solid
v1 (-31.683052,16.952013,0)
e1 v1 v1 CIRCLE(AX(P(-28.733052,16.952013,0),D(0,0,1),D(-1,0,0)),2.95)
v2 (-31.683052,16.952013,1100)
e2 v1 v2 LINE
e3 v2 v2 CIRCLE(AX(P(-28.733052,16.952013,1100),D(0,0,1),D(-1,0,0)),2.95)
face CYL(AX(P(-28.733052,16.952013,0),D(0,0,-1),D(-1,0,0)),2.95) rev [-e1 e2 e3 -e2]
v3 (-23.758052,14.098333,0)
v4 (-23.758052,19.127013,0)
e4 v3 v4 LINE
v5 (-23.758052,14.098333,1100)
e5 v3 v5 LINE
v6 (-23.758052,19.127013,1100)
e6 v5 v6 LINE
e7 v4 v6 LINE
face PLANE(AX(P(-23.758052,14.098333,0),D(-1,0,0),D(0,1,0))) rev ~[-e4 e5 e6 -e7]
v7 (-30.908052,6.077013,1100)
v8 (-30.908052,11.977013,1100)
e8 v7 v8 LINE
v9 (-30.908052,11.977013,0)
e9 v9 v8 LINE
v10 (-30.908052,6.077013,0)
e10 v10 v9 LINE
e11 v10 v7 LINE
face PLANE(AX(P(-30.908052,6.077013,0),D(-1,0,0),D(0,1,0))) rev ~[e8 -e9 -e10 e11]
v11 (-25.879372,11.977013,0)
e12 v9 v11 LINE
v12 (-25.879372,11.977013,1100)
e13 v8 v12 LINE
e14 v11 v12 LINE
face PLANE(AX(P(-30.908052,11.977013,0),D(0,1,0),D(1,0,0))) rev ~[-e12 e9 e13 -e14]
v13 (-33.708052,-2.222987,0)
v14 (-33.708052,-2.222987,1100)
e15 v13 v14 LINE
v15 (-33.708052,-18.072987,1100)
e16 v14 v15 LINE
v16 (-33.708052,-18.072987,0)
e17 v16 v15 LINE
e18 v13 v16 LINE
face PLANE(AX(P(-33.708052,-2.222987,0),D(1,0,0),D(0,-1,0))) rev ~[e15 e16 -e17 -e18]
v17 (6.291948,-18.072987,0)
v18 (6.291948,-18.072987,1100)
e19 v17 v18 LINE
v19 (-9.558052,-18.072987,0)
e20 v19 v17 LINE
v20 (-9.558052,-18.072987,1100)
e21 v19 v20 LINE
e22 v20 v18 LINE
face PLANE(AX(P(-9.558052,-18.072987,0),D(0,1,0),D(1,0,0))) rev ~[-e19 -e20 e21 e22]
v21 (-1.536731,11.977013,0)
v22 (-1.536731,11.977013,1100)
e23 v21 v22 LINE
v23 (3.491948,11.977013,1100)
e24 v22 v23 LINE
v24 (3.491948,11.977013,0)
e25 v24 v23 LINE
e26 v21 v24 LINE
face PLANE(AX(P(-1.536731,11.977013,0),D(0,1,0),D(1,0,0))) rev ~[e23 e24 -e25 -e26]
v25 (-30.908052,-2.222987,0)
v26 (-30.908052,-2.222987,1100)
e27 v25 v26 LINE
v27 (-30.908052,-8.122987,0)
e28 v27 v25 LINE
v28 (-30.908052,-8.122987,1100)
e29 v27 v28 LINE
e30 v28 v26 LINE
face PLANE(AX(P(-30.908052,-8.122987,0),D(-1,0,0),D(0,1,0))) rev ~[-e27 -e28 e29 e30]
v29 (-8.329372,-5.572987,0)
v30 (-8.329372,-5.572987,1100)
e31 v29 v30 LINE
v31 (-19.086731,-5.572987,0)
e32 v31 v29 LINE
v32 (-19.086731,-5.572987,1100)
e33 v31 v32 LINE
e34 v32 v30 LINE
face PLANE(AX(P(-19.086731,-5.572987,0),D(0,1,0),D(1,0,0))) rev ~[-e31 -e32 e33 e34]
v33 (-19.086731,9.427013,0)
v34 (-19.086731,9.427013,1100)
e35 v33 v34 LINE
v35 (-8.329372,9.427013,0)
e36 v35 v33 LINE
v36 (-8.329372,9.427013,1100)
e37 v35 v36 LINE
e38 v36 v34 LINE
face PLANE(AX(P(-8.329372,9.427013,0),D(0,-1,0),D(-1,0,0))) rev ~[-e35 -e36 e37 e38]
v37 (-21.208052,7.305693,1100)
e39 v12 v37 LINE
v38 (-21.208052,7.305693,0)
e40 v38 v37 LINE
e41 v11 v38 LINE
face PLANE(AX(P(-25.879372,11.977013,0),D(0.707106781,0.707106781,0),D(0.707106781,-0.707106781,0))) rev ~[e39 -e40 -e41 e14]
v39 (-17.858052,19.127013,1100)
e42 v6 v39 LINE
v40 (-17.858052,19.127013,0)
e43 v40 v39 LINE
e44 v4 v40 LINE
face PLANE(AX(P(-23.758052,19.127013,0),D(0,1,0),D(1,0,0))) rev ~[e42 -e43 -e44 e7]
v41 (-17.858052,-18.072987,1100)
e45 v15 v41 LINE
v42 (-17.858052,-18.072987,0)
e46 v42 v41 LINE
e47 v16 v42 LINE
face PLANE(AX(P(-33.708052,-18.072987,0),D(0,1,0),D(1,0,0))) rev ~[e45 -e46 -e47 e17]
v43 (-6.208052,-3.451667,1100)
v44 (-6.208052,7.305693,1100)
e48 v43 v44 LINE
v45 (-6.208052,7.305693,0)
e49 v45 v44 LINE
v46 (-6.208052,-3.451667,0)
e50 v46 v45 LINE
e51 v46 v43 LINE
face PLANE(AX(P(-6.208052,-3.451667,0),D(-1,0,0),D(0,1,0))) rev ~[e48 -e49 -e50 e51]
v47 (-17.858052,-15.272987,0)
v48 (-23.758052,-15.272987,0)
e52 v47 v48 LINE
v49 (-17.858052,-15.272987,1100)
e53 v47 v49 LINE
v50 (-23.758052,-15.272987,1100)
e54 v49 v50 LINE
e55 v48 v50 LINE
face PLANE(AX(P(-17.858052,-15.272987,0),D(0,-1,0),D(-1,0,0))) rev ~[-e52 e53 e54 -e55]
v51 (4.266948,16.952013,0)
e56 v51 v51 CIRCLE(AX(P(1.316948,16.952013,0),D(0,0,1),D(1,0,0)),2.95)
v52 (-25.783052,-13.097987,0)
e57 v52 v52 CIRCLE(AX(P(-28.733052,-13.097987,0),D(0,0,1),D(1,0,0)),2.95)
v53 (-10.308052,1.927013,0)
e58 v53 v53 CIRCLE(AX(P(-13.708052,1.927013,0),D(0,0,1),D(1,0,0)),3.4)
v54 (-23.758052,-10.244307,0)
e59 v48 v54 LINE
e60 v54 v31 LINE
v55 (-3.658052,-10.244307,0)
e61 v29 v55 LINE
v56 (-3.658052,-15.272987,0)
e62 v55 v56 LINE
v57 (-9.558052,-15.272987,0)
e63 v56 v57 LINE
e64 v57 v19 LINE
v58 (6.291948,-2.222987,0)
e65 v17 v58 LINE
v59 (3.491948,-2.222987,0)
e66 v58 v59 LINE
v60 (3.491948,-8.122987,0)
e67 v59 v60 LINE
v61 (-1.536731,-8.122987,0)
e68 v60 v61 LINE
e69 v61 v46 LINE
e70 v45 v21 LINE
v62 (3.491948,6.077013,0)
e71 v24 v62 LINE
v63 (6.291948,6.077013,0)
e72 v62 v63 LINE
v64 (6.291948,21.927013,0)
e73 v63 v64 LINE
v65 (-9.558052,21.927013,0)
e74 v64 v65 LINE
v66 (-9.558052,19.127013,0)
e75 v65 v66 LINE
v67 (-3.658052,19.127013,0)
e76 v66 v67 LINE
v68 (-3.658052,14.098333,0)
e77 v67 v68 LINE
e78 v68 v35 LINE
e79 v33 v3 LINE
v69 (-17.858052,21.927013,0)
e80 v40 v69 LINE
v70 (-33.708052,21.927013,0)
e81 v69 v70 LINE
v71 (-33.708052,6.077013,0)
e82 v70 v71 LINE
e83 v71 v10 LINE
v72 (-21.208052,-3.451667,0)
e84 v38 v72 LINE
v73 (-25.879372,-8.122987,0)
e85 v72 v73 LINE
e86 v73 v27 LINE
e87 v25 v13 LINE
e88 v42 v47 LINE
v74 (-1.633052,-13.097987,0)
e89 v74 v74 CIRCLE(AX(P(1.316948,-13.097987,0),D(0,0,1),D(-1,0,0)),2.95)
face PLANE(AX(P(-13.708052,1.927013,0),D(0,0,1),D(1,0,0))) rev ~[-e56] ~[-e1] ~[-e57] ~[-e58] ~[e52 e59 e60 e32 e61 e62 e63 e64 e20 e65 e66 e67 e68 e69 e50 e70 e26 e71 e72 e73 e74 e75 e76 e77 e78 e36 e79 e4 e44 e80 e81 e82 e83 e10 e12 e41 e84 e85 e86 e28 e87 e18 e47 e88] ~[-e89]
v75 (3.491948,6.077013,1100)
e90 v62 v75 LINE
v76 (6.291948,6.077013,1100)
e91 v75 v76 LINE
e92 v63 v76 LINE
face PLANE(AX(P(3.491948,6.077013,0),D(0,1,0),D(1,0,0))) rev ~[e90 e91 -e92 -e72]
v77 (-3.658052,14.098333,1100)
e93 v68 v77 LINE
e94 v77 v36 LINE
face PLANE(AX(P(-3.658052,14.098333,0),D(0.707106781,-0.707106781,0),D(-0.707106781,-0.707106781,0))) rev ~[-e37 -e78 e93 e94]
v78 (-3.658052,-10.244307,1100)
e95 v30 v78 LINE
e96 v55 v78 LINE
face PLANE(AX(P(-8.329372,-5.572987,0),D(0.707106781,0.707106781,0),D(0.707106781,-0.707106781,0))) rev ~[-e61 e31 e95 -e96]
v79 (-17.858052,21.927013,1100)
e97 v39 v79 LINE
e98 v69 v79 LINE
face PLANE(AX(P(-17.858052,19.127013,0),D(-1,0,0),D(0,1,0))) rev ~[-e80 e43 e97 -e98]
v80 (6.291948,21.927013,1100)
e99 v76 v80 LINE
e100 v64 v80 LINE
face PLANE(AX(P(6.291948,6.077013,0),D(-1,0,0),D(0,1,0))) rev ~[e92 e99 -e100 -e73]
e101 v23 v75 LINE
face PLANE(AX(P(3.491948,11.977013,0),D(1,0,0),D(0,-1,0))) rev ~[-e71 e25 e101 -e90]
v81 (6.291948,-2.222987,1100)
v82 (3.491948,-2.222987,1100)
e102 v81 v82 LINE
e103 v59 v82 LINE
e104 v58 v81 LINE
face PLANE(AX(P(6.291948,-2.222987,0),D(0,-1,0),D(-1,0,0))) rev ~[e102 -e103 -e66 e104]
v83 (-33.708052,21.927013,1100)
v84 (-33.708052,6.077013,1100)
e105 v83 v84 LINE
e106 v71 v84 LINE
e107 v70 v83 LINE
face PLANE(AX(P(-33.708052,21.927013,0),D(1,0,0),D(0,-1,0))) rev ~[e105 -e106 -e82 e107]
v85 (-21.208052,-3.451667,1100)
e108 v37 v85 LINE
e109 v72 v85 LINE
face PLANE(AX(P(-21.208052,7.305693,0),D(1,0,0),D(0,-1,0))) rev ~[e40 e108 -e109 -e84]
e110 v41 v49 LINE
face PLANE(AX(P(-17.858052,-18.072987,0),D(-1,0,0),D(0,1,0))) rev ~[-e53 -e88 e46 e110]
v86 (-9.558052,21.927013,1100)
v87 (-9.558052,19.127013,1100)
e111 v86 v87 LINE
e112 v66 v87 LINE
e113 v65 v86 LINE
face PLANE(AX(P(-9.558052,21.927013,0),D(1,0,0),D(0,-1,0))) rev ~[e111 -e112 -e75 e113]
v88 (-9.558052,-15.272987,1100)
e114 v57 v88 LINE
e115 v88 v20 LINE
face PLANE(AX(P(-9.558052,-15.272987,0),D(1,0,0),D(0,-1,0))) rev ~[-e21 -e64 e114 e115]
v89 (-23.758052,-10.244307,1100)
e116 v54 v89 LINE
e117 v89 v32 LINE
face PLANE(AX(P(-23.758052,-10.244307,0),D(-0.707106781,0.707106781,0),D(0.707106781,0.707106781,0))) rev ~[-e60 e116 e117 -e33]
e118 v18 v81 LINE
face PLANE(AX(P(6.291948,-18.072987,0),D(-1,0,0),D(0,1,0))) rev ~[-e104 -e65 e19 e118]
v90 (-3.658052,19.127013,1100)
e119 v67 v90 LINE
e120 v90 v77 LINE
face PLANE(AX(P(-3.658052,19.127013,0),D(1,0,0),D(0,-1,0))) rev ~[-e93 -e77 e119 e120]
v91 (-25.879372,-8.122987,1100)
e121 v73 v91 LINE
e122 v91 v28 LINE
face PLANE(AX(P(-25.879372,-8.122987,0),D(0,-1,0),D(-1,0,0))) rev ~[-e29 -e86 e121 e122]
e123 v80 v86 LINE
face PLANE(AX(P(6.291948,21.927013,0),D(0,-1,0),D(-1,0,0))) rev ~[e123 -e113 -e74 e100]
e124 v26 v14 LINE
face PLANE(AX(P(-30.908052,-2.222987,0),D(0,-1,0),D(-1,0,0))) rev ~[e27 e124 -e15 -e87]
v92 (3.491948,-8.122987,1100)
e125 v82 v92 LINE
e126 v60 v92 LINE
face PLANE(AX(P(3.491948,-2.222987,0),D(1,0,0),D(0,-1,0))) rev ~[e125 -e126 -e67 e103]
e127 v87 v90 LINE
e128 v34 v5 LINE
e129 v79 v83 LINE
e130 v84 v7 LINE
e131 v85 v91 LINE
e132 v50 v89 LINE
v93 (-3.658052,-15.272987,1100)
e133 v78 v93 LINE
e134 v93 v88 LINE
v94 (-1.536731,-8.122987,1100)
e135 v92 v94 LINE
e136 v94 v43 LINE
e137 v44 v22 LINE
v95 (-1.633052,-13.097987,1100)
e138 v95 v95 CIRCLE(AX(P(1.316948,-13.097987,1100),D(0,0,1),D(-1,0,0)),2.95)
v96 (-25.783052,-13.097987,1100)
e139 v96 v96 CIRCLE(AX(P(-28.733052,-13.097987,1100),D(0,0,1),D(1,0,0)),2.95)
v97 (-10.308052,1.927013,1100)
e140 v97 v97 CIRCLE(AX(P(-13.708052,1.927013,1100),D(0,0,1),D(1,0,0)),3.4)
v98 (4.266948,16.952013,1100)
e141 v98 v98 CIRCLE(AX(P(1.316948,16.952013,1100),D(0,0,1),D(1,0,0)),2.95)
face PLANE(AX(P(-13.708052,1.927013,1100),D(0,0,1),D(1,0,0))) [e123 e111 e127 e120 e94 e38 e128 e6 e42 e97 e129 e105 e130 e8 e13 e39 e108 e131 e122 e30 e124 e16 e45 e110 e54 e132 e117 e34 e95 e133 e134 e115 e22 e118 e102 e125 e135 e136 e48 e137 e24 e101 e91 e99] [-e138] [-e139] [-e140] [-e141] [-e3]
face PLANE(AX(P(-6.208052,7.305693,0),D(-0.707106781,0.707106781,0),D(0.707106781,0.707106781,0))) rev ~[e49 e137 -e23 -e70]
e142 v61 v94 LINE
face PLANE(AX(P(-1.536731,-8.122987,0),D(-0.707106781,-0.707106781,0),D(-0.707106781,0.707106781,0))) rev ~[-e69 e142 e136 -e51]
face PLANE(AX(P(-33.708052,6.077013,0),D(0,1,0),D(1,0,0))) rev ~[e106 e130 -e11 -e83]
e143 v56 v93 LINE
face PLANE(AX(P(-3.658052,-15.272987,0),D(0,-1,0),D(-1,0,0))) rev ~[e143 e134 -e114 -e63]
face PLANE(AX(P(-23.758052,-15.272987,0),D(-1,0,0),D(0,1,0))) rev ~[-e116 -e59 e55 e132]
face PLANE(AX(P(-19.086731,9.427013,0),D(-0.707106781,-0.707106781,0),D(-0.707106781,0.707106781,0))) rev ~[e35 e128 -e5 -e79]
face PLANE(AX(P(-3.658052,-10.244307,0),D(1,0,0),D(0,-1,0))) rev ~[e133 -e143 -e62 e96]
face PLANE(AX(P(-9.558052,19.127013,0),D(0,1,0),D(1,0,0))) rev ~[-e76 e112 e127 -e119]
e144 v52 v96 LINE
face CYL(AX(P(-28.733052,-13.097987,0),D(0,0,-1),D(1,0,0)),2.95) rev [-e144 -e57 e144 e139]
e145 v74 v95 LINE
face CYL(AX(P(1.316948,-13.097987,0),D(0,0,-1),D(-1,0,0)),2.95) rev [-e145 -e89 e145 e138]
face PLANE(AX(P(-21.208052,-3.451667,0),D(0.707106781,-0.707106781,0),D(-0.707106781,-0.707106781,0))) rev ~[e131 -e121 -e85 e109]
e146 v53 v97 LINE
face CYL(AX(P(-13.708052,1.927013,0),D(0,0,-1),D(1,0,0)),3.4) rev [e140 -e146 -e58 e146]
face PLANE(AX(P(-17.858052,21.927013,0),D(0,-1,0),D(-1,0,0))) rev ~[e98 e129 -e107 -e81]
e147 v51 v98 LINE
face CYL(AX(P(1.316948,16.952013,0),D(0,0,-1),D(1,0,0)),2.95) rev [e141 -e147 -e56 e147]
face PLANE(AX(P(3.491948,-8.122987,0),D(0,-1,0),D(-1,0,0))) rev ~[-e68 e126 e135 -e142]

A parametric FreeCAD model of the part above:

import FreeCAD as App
import Part
import Sketcher
from FreeCAD import Vector

doc = App.newDocument("Part")
params = doc.addObject("Spreadsheet::Sheet", "Params")
for row, (alias, value) in enumerate([
    ("sketch1_diameter", "5.9 mm"),
    ("sketch1_diameter2", "6.8 mm"),
    ("sketch1_width", "5.9 mm"),
    ("sketch1_width2", "2.8 mm"),
    ("sketch1_width3", "15.85 mm"),
    ("pad1_length", "1100 mm"),
], start=1):
    params.set(f"A{row}", alias)
    params.set(f"B{row}", "=" + value)
    params.setAlias(f"B{row}", alias)

body = doc.addObject("PartDesign::Body", "Body")

# Sketch on XY plane
sketch1 = body.newObject("Sketcher::SketchObject", "Sketch")
sketch1.AttachmentSupport = (doc.getObject("XY_Plane"), [""])
sketch1.MapMode = "FlatFace"
sketch1.addGeometry([
    Part.LineSegment(Vector(-19.1, -5.6, 0), Vector(-8.3, -5.6, 0)),  # 0
    Part.LineSegment(Vector(-8.3, -5.6, 0), Vector(-3.7, -10.2, 0)),  # 1
    Part.LineSegment(Vector(-3.7, -10.2, 0), Vector(-3.7, -15.3, 0)),  # 2
    Part.LineSegment(Vector(-3.7, -15.3, 0), Vector(-9.6, -15.3, 0)),  # 3
    Part.LineSegment(Vector(-9.6, -15.3, 0), Vector(-9.6, -18.1, 0)),  # 4
    Part.LineSegment(Vector(-9.6, -18.1, 0), Vector(6.3, -18.1, 0)),  # 5
    Part.LineSegment(Vector(6.3, -18.1, 0), Vector(6.3, -2.2, 0)),  # 6
    Part.LineSegment(Vector(6.3, -2.2, 0), Vector(3.5, -2.2, 0)),  # 7
    Part.LineSegment(Vector(3.5, -2.2, 0), Vector(3.5, -8.1, 0)),  # 8
    Part.LineSegment(Vector(3.5, -8.1, 0), Vector(-1.5, -8.1, 0)),  # 9
    Part.LineSegment(Vector(-1.5, -8.1, 0), Vector(-6.2, -3.5, 0)),  # 10
    Part.LineSegment(Vector(-6.2, -3.5, 0), Vector(-6.2, 7.3, 0)),  # 11
    Part.LineSegment(Vector(-6.2, 7.3, 0), Vector(-1.5, 12, 0)),  # 12
    Part.LineSegment(Vector(-1.5, 12, 0), Vector(3.5, 12, 0)),  # 13
    Part.LineSegment(Vector(3.5, 12, 0), Vector(3.5, 6.1, 0)),  # 14
    Part.LineSegment(Vector(3.5, 6.1, 0), Vector(6.3, 6.1, 0)),  # 15
    Part.LineSegment(Vector(6.3, 6.1, 0), Vector(6.3, 21.9, 0)),  # 16
    Part.LineSegment(Vector(6.3, 21.9, 0), Vector(-9.6, 21.9, 0)),  # 17
    Part.LineSegment(Vector(-9.6, 21.9, 0), Vector(-9.6, 19.1, 0)),  # 18
    Part.LineSegment(Vector(-9.6, 19.1, 0), Vector(-3.7, 19.1, 0)),  # 19
    Part.LineSegment(Vector(-3.7, 19.1, 0), Vector(-3.7, 14.1, 0)),  # 20
    Part.LineSegment(Vector(-3.7, 14.1, 0), Vector(-8.3, 9.4, 0)),  # 21
    Part.LineSegment(Vector(-8.3, 9.4, 0), Vector(-19.1, 9.4, 0)),  # 22
    Part.LineSegment(Vector(-19.1, 9.4, 0), Vector(-23.8, 14.1, 0)),  # 23
    Part.LineSegment(Vector(-23.8, 14.1, 0), Vector(-23.8, 19.1, 0)),  # 24
    Part.LineSegment(Vector(-23.8, 19.1, 0), Vector(-17.9, 19.1, 0)),  # 25
    Part.LineSegment(Vector(-17.9, 19.1, 0), Vector(-17.9, 21.9, 0)),  # 26
    Part.LineSegment(Vector(-17.9, 21.9, 0), Vector(-33.7, 21.9, 0)),  # 27
    Part.LineSegment(Vector(-33.7, 21.9, 0), Vector(-33.7, 6.1, 0)),  # 28
    Part.LineSegment(Vector(-33.7, 6.1, 0), Vector(-30.9, 6.1, 0)),  # 29
    Part.LineSegment(Vector(-30.9, 6.1, 0), Vector(-30.9, 12, 0)),  # 30
    Part.LineSegment(Vector(-30.9, 12, 0), Vector(-25.9, 12, 0)),  # 31
    Part.LineSegment(Vector(-25.9, 12, 0), Vector(-21.2, 7.3, 0)),  # 32
    Part.LineSegment(Vector(-21.2, 7.3, 0), Vector(-21.2, -3.5, 0)),  # 33
    Part.LineSegment(Vector(-21.2, -3.5, 0), Vector(-25.9, -8.1, 0)),  # 34
    Part.LineSegment(Vector(-25.9, -8.1, 0), Vector(-30.9, -8.1, 0)),  # 35
    Part.LineSegment(Vector(-30.9, -8.1, 0), Vector(-30.9, -2.2, 0)),  # 36
    Part.LineSegment(Vector(-30.9, -2.2, 0), Vector(-33.7, -2.2, 0)),  # 37
    Part.LineSegment(Vector(-33.7, -2.2, 0), Vector(-33.7, -18.1, 0)),  # 38
    Part.LineSegment(Vector(-33.7, -18.1, 0), Vector(-17.9, -18.1, 0)),  # 39
    Part.LineSegment(Vector(-17.9, -18.1, 0), Vector(-17.9, -15.3, 0)),  # 40
    Part.LineSegment(Vector(-17.9, -15.3, 0), Vector(-23.8, -15.3, 0)),  # 41
    Part.LineSegment(Vector(-23.8, -15.3, 0), Vector(-23.8, -10.2, 0)),  # 42
    Part.LineSegment(Vector(-23.8, -10.2, 0), Vector(-19.1, -5.6, 0)),  # 43
    Part.Circle(Vector(-28.7, -13.1, 0), Vector(0, 0, 1), 3),  # 44
    Part.Circle(Vector(1.3, -13.1, 0), Vector(0, 0, 1), 3),  # 45
    Part.Circle(Vector(-28.7, 17, 0), Vector(0, 0, 1), 3),  # 46
    Part.Circle(Vector(-13.7, 1.9, 0), Vector(0, 0, 1), 3.4),  # 47
    Part.Circle(Vector(1.3, 17, 0), Vector(0, 0, 1), 3),  # 48
], False)
sketch1.addConstraint([
    Sketcher.Constraint("Coincident", 0, 2, 1, 1),
    Sketcher.Constraint("Coincident", 1, 2, 2, 1),
    Sketcher.Constraint("Coincident", 2, 2, 3, 1),
    Sketcher.Constraint("Coincident", 3, 2, 4, 1),
    Sketcher.Constraint("Coincident", 4, 2, 5, 1),
    Sketcher.Constraint("Coincident", 5, 2, 6, 1),
    Sketcher.Constraint("Coincident", 6, 2, 7, 1),
    Sketcher.Constraint("Coincident", 7, 2, 8, 1),
    Sketcher.Constraint("Coincident", 8, 2, 9, 1),
    Sketcher.Constraint("Coincident", 9, 2, 10, 1),
    Sketcher.Constraint("Coincident", 10, 2, 11, 1),
    Sketcher.Constraint("Coincident", 11, 2, 12, 1),
    Sketcher.Constraint("Coincident", 12, 2, 13, 1),
    Sketcher.Constraint("Coincident", 13, 2, 14, 1),
    Sketcher.Constraint("Coincident", 14, 2, 15, 1),
    Sketcher.Constraint("Coincident", 15, 2, 16, 1),
    Sketcher.Constraint("Coincident", 16, 2, 17, 1),
    Sketcher.Constraint("Coincident", 17, 2, 18, 1),
    Sketcher.Constraint("Coincident", 18, 2, 19, 1),
    Sketcher.Constraint("Coincident", 19, 2, 20, 1),
    Sketcher.Constraint("Coincident", 20, 2, 21, 1),
    Sketcher.Constraint("Coincident", 21, 2, 22, 1),
    Sketcher.Constraint("Coincident", 22, 2, 23, 1),
    Sketcher.Constraint("Coincident", 23, 2, 24, 1),
    Sketcher.Constraint("Coincident", 24, 2, 25, 1),
    Sketcher.Constraint("Coincident", 25, 2, 26, 1),
    Sketcher.Constraint("Coincident", 26, 2, 27, 1),
    Sketcher.Constraint("Coincident", 27, 2, 28, 1),
    Sketcher.Constraint("Coincident", 28, 2, 29, 1),
    Sketcher.Constraint("Coincident", 29, 2, 30, 1),
    Sketcher.Constraint("Coincident", 30, 2, 31, 1),
    Sketcher.Constraint("Coincident", 31, 2, 32, 1),
    Sketcher.Constraint("Coincident", 32, 2, 33, 1),
    Sketcher.Constraint("Coincident", 33, 2, 34, 1),
    Sketcher.Constraint("Coincident", 34, 2, 35, 1),
    Sketcher.Constraint("Coincident", 35, 2, 36, 1),
    Sketcher.Constraint("Coincident", 36, 2, 37, 1),
    Sketcher.Constraint("Coincident", 37, 2, 38, 1),
    Sketcher.Constraint("Coincident", 38, 2, 39, 1),
    Sketcher.Constraint("Coincident", 39, 2, 40, 1),
    Sketcher.Constraint("Coincident", 40, 2, 41, 1),
    Sketcher.Constraint("Coincident", 41, 2, 42, 1),
    Sketcher.Constraint("Coincident", 42, 2, 43, 1),
    Sketcher.Constraint("Coincident", 43, 2, 0, 1),
    Sketcher.Constraint("Horizontal", 0),
    Sketcher.Constraint("Vertical", 2),
    Sketcher.Constraint("Horizontal", 3),
    Sketcher.Constraint("Vertical", 4),
    Sketcher.Constraint("Horizontal", 5),
    Sketcher.Constraint("Vertical", 6),
    Sketcher.Constraint("Horizontal", 7),
    Sketcher.Constraint("Vertical", 8),
    Sketcher.Constraint("Horizontal", 9),
    Sketcher.Constraint("Vertical", 11),
    Sketcher.Constraint("Horizontal", 13),
    Sketcher.Constraint("Vertical", 14),
    Sketcher.Constraint("Horizontal", 15),
    Sketcher.Constraint("Vertical", 16),
    Sketcher.Constraint("Horizontal", 17),
    Sketcher.Constraint("Vertical", 18),
    Sketcher.Constraint("Horizontal", 19),
    Sketcher.Constraint("Vertical", 20),
    Sketcher.Constraint("Horizontal", 22),
    Sketcher.Constraint("Vertical", 24),
    Sketcher.Constraint("Horizontal", 25),
    Sketcher.Constraint("Vertical", 26),
    Sketcher.Constraint("Horizontal", 27),
    Sketcher.Constraint("Vertical", 28),
    Sketcher.Constraint("Horizontal", 29),
    Sketcher.Constraint("Vertical", 30),
    Sketcher.Constraint("Horizontal", 31),
    Sketcher.Constraint("Vertical", 33),
    Sketcher.Constraint("Horizontal", 35),
    Sketcher.Constraint("Vertical", 36),
    Sketcher.Constraint("Horizontal", 37),
    Sketcher.Constraint("Vertical", 38),
    Sketcher.Constraint("Horizontal", 39),
    Sketcher.Constraint("Vertical", 40),
    Sketcher.Constraint("Horizontal", 41),
    Sketcher.Constraint("Vertical", 42),
    Sketcher.Constraint("Equal", 44, 45),
    Sketcher.Constraint("Equal", 45, 46),
    Sketcher.Constraint("Equal", 46, 48),
    Sketcher.Constraint("Parallel", 1, 10),
    Sketcher.Constraint("Perpendicular", 10, 12),
    Sketcher.Constraint("Parallel", 12, 21),
    Sketcher.Constraint("Perpendicular", 21, 23),
    Sketcher.Constraint("Parallel", 23, 32),
    Sketcher.Constraint("Perpendicular", 32, 34),
    Sketcher.Constraint("Parallel", 34, 43),
    Sketcher.Constraint("Horizontal", 44, 3, 45, 3),
    Sketcher.Constraint("Horizontal", 46, 3, 48, 3),
    Sketcher.Constraint("Horizontal", 20, 2, 23, 2),
    Sketcher.Constraint("Horizontal", 19, 2, 24, 2),
    Sketcher.Constraint("Horizontal", 17, 2, 26, 2),
    Sketcher.Constraint("Horizontal", 15, 2, 28, 2),
    Sketcher.Constraint("Horizontal", 13, 2, 30, 2),
    Sketcher.Constraint("Horizontal", 11, 2, 32, 2),
    Sketcher.Constraint("Horizontal", 10, 2, 33, 2),
    Sketcher.Constraint("Horizontal", 9, 2, 34, 2),
    Sketcher.Constraint("Horizontal", 7, 2, 36, 2),
    Sketcher.Constraint("Horizontal", 5, 2, 38, 2),
    Sketcher.Constraint("Horizontal", 3, 2, 40, 2),
    Sketcher.Constraint("Horizontal", 1, 2, 42, 2),
    Sketcher.Constraint("Vertical", 44, 3, 46, 3),
    Sketcher.Constraint("Vertical", 45, 3, 48, 3),
    Sketcher.Constraint("Vertical", 9, 2, 12, 2),
    Sketcher.Constraint("Vertical", 8, 2, 13, 2),
    Sketcher.Constraint("Vertical", 6, 2, 15, 2),
    Sketcher.Constraint("Vertical", 4, 2, 17, 2),
    Sketcher.Constraint("Vertical", 2, 2, 19, 2),
    Sketcher.Constraint("Vertical", 0, 2, 21, 2),
    Sketcher.Constraint("Vertical", 31, 2, 34, 2),
    Sketcher.Constraint("Vertical", 30, 2, 35, 2),
    Sketcher.Constraint("Vertical", 28, 2, 37, 2),
    Sketcher.Constraint("Vertical", 26, 2, 39, 2),
    Sketcher.Constraint("Vertical", 24, 2, 41, 2),
    Sketcher.Constraint("Equal", 19, 25),
    Sketcher.Constraint("Equal", 17, 27),
    Sketcher.Constraint("Equal", 15, 29),
    Sketcher.Constraint("Equal", 13, 31),
    Sketcher.Constraint("Equal", 35, 2),
    Sketcher.Constraint("Equal", 37, 4),
    Sketcher.Constraint("Equal", 39, 6),
    Sketcher.Constraint("Equal", 41, 8),
    Sketcher.Constraint("Equal", 22, 11),
    Sketcher.Constraint("Equal", 8, 14),
    Sketcher.Constraint("Equal", 6, 16),
    Sketcher.Constraint("Equal", 4, 18),
    Sketcher.Constraint("Equal", 2, 20),
    Sketcher.Constraint("Equal", 1, 10),
    Sketcher.Constraint("Diameter", 44, 5.9),
    Sketcher.Constraint("Diameter", 47, 6.8),
    Sketcher.Constraint("DistanceX", 3, 2, 3, 1, 5.9),
    Sketcher.Constraint("DistanceX", 7, 2, 7, 1, 2.8),
    Sketcher.Constraint("DistanceX", 5, 1, 5, 2, 15.85),
    Sketcher.Constraint("DistanceY", 0, 2, 47, 3, 7.5),
    Sketcher.Constraint("DistanceY", 2, 2, 0, 2, 9.7),
    Sketcher.Constraint("DistanceX", 47, 3, 10, 2, 7.5),
    Sketcher.Constraint("DistanceY", 7, 2, 12, 2, 14.2),
    Sketcher.Constraint("DistanceX", 44, 3, 45, 3, 30.05),
    Sketcher.Constraint("DistanceY", 44, 3, 46, 3, 30.05),
    Sketcher.Constraint("DistanceX", 44, 3, 47, 3, 15.025),
    Sketcher.Constraint("DistanceY", 44, 3, 47, 3, 15.025),
    Sketcher.Constraint("DistanceX", 0, 1, 0, 2, 10.757359),
    Sketcher.Constraint("DistanceX", 44, 3, -1, 1, 28.733052),
    Sketcher.Constraint("DistanceY", 44, 3, -1, 1, 13.097987),
])
sketch1.setExpression("Constraints[131]", "Params.sketch1_diameter")
sketch1.setExpression("Constraints[132]", "Params.sketch1_diameter2")
sketch1.setExpression("Constraints[133]", "Params.sketch1_width")
sketch1.setExpression("Constraints[134]", "Params.sketch1_width2")
sketch1.setExpression("Constraints[135]", "Params.sketch1_width3")
pad1 = body.newObject("PartDesign::Pad", "Pad")
pad1.Profile = sketch1
pad1.setExpression("Length", "Params.pad1_length")

doc.recompute()
